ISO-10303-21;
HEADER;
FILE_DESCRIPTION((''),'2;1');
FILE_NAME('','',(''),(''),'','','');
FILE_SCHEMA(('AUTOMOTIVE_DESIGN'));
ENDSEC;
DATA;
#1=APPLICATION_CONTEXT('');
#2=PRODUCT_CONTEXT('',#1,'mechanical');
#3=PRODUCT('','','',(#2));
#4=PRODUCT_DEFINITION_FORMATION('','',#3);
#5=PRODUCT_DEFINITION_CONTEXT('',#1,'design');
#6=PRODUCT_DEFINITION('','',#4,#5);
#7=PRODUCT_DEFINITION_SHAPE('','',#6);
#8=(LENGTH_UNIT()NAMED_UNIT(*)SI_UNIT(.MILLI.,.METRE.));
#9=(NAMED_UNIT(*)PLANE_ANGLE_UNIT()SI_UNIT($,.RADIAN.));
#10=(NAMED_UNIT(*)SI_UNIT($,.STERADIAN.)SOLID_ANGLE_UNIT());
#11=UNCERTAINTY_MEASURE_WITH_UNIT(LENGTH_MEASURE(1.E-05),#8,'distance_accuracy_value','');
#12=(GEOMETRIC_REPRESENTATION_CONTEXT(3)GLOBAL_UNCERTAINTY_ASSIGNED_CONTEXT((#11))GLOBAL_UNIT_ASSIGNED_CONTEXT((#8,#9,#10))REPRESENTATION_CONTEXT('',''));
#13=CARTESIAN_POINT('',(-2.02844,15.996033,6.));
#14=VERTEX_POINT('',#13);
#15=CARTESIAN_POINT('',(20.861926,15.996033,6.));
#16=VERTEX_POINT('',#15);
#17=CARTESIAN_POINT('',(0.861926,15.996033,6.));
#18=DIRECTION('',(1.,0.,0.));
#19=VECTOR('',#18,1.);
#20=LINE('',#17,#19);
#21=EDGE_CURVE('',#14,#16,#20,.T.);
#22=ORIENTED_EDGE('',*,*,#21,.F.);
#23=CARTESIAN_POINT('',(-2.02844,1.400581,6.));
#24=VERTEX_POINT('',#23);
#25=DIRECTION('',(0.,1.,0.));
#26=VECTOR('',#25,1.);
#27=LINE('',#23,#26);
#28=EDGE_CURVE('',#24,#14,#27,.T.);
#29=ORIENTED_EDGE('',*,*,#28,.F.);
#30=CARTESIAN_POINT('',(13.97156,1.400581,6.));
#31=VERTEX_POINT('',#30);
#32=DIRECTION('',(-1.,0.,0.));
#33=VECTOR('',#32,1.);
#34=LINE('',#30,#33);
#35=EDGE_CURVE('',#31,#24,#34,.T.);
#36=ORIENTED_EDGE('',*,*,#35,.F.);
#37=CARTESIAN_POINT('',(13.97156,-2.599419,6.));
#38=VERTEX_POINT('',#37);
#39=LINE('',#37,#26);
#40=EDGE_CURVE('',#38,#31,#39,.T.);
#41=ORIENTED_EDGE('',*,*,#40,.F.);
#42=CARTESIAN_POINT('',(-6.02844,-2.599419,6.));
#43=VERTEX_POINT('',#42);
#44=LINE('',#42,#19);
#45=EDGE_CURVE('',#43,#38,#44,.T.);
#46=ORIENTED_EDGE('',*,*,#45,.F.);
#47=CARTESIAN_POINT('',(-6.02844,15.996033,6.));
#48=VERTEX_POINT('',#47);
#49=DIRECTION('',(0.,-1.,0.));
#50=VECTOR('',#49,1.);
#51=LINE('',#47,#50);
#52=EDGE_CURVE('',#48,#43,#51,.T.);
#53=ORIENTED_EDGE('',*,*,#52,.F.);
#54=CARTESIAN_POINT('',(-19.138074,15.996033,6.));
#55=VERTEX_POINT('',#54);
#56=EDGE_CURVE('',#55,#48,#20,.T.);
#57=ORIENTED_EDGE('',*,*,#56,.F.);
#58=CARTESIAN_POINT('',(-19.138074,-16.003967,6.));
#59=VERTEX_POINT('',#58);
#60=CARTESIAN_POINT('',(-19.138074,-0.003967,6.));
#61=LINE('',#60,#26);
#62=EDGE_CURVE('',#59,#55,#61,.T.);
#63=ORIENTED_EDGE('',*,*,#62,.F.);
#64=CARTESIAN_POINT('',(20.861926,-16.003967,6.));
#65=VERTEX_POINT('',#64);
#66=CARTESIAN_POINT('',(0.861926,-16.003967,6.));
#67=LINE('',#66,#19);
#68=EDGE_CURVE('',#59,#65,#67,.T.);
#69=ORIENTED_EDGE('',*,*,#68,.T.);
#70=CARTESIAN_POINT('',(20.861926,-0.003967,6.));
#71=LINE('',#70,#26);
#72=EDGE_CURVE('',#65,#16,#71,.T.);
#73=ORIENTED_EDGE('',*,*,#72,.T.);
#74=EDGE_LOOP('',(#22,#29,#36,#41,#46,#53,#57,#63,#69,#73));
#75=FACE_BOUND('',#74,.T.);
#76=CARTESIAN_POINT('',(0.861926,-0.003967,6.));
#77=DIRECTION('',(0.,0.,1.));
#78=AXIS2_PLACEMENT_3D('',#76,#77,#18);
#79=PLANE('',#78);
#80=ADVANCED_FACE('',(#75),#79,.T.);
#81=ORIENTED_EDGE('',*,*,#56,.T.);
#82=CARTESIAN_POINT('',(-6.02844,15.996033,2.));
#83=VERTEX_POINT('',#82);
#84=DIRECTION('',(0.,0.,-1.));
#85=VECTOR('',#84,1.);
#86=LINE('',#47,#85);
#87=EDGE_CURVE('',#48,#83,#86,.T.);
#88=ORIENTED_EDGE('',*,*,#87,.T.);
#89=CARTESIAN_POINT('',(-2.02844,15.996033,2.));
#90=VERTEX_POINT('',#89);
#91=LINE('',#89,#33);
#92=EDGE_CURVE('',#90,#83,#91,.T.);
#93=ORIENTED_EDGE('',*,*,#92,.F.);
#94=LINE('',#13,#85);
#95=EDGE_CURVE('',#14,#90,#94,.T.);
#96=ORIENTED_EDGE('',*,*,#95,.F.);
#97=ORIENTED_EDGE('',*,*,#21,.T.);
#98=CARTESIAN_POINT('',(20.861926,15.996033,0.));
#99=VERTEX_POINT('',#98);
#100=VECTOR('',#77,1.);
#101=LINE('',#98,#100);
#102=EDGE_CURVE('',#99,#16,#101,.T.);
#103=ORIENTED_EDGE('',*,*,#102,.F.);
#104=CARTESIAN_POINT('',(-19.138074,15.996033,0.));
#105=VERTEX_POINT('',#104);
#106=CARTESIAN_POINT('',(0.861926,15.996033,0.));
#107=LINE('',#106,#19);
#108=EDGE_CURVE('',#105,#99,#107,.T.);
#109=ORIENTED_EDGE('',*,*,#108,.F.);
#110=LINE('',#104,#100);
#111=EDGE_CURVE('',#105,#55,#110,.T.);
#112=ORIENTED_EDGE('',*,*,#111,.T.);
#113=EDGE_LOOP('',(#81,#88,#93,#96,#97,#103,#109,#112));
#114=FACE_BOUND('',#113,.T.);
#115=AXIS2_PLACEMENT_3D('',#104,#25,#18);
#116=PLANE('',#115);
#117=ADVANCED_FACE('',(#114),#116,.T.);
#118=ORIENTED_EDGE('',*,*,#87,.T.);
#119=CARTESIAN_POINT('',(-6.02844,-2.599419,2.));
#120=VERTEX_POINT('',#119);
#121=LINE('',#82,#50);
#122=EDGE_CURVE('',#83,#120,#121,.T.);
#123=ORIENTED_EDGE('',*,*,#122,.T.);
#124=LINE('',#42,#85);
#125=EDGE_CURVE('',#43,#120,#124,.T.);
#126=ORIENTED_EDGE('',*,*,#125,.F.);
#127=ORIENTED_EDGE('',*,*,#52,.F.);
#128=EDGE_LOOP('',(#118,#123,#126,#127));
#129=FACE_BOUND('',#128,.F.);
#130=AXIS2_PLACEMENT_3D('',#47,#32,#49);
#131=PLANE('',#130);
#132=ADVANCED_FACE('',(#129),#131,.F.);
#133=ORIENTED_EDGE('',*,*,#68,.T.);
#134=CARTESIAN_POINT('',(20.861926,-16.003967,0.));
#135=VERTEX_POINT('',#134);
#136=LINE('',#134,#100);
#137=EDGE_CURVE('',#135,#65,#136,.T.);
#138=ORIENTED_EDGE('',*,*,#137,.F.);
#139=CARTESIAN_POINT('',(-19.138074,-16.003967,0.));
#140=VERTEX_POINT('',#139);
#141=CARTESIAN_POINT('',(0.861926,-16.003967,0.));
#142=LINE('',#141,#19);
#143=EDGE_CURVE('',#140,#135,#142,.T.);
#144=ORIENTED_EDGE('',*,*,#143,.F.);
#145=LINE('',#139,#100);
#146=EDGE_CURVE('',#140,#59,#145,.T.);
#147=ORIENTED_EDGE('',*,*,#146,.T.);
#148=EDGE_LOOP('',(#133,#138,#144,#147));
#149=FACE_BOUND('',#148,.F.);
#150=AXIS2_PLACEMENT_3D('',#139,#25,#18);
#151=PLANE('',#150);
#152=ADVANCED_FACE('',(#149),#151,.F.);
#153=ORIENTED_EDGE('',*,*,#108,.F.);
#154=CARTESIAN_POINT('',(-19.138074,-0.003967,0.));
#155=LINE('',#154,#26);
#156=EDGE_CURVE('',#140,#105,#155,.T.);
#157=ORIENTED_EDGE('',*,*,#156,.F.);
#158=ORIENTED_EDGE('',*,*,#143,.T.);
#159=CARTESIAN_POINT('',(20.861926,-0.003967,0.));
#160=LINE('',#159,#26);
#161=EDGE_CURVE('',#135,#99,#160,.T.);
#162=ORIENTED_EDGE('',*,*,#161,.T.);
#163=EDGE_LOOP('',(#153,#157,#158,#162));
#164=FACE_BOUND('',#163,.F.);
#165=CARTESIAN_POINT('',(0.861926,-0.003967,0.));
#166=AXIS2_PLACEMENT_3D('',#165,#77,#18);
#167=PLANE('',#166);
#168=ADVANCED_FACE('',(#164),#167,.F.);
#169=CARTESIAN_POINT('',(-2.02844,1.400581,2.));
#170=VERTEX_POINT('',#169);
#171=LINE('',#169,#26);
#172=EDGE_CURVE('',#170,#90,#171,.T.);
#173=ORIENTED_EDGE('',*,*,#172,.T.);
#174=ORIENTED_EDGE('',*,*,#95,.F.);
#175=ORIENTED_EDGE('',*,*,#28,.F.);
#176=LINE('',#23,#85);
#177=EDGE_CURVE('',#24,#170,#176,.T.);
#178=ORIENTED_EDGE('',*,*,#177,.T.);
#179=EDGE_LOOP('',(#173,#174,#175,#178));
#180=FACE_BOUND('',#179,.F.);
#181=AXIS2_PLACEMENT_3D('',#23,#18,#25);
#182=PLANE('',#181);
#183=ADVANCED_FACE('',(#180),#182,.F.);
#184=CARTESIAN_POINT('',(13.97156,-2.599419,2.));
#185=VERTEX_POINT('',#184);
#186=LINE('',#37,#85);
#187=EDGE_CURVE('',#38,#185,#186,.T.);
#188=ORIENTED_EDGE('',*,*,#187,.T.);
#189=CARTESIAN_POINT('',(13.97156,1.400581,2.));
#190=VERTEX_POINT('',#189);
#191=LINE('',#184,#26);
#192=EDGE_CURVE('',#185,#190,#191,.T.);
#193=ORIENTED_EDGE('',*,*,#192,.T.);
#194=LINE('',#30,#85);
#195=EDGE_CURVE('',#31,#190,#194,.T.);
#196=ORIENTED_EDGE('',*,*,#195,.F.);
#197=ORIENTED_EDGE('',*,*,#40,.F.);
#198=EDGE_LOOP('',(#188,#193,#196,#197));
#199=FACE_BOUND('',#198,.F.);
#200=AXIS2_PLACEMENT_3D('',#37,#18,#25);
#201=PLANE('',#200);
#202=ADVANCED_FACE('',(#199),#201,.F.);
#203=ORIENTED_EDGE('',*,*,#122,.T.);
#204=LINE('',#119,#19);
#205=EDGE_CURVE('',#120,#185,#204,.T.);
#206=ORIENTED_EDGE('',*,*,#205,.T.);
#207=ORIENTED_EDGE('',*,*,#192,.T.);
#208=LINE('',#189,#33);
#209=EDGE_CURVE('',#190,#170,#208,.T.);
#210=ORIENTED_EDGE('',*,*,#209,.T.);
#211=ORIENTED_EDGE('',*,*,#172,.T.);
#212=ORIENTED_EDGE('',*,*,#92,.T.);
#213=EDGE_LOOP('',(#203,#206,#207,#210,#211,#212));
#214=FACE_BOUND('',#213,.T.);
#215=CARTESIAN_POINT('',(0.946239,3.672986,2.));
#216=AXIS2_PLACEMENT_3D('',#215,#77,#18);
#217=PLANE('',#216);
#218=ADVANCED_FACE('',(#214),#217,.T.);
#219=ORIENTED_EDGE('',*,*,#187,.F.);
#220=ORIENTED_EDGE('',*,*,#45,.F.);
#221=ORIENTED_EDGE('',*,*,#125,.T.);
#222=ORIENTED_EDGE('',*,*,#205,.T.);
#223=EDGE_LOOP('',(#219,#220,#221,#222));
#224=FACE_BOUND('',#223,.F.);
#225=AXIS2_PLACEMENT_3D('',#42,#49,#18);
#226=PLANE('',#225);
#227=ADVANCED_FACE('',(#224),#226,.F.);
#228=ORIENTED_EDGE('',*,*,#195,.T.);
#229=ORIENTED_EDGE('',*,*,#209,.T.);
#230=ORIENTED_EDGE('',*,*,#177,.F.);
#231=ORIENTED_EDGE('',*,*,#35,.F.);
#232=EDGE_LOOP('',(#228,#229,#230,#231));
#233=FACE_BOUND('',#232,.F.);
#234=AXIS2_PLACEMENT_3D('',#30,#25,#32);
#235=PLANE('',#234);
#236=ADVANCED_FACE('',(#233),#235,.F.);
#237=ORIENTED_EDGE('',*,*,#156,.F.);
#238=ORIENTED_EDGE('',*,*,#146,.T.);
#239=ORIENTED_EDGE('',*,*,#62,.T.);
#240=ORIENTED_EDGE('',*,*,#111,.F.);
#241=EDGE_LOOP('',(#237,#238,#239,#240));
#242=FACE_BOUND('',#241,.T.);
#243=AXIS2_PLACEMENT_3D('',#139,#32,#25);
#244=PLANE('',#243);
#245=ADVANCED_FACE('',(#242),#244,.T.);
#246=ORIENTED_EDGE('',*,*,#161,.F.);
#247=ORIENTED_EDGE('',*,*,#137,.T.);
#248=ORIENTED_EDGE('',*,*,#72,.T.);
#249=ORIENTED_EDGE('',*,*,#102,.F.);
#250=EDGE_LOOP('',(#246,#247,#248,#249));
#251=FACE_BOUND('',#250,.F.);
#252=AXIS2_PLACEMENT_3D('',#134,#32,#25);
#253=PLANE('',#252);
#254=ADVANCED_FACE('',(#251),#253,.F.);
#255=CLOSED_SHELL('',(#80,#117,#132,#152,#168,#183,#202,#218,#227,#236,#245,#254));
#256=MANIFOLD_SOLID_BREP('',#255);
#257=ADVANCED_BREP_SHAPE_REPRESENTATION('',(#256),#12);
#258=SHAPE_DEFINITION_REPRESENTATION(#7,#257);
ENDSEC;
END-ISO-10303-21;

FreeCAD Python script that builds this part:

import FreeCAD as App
import Part
import Sketcher

V = App.Vector


def add_polygon(sketch, points):
    """Adds a closed chain of lines whose ends are joined by coincident constraints."""
    first, n = sketch.GeometryCount, len(points)
    for a, b in zip(points, points[1:] + points[:1]):
        sketch.addGeometry(Part.LineSegment(App.Vector(*a, 0), App.Vector(*b, 0)), False)
    for i in range(n):
        sketch.addConstraint(Sketcher.Constraint("Coincident", first + i, 2, first + (i + 1) % n, 1))

doc = App.newDocument("Part")
body = doc.addObject("PartDesign::Body", "Body")

# Sketch on XY plane
sketch1 = doc.addObject("Sketcher::SketchObject", "Sketch")
body.addObject(sketch1)
sketch1.AttachmentSupport = (doc.XY_Plane, [""])
sketch1.MapMode = "FlatFace"
add_polygon(sketch1, [(-19, 16), (-19, -16), (21, -16), (21, 16)])  # lines 0-3
sketch1.addConstraint(Sketcher.Constraint("Vertical", 0))
sketch1.addConstraint(Sketcher.Constraint("Horizontal", 1))
sketch1.addConstraint(Sketcher.Constraint("Vertical", 2))
sketch1.addConstraint(Sketcher.Constraint("Horizontal", 3))
sketch1.addConstraint(Sketcher.Constraint("DistanceX", 1, 1, 1, 2, 40.0))
sketch1.addConstraint(Sketcher.Constraint("DistanceY", 0, 2, 0, 1, 32.0))
sketch1.addConstraint(Sketcher.Constraint("DistanceX", 0, 2, -1, 1, 19.138074))
sketch1.addConstraint(Sketcher.Constraint("DistanceY", 0, 2, -1, 1, 16.003967))
pad1 = doc.addObject("PartDesign::Pad", "Pad")
body.addObject(pad1)
pad1.Profile = sketch1
pad1.Length = 6

# Sketch on XY plane
sketch2 = doc.addObject("Sketcher::SketchObject", "Sketch001")
body.addObject(sketch2)
sketch2.AttachmentSupport = (doc.XY_Plane, [""])
sketch2.MapMode = "FlatFace"
sketch2.AttachmentOffset = App.Placement(V(0, 0, 6), App.Rotation())
add_polygon(sketch2, [(-6, 16), (-6, -2.6), (14, -2.6), (14, 1.4), (-2, 1.4), (-2, 16)])  # lines 0-5
sketch2.addConstraint(Sketcher.Constraint("Vertical", 0))
sketch2.addConstraint(Sketcher.Constraint("Horizontal", 1))
sketch2.addConstraint(Sketcher.Constraint("Vertical", 2))
sketch2.addConstraint(Sketcher.Constraint("Horizontal", 3))
sketch2.addConstraint(Sketcher.Constraint("Vertical", 4))
sketch2.addConstraint(Sketcher.Constraint("Horizontal", 5))
sketch2.addConstraint(Sketcher.Constraint("Equal", 5, 2))
sketch2.addConstraint(Sketcher.Constraint("DistanceX", 1, 1, 1, 2, 20.0))
sketch2.addConstraint(Sketcher.Constraint("DistanceX", 3, 2, 3, 1, 16.0))
sketch2.addConstraint(Sketcher.Constraint("DistanceY", 0, 2, 0, 1, 18.595452))
sketch2.addConstraint(Sketcher.Constraint("DistanceX", 0, 2, -1, 1, 6.02844))
sketch2.addConstraint(Sketcher.Constraint("DistanceY", 0, 2, -1, 1, 2.599419))
pocket1 = doc.addObject("PartDesign::Pocket", "Pocket")
body.addObject(pocket1)
pocket1.Profile = sketch2
pocket1.Length = 4

doc.recompute()
